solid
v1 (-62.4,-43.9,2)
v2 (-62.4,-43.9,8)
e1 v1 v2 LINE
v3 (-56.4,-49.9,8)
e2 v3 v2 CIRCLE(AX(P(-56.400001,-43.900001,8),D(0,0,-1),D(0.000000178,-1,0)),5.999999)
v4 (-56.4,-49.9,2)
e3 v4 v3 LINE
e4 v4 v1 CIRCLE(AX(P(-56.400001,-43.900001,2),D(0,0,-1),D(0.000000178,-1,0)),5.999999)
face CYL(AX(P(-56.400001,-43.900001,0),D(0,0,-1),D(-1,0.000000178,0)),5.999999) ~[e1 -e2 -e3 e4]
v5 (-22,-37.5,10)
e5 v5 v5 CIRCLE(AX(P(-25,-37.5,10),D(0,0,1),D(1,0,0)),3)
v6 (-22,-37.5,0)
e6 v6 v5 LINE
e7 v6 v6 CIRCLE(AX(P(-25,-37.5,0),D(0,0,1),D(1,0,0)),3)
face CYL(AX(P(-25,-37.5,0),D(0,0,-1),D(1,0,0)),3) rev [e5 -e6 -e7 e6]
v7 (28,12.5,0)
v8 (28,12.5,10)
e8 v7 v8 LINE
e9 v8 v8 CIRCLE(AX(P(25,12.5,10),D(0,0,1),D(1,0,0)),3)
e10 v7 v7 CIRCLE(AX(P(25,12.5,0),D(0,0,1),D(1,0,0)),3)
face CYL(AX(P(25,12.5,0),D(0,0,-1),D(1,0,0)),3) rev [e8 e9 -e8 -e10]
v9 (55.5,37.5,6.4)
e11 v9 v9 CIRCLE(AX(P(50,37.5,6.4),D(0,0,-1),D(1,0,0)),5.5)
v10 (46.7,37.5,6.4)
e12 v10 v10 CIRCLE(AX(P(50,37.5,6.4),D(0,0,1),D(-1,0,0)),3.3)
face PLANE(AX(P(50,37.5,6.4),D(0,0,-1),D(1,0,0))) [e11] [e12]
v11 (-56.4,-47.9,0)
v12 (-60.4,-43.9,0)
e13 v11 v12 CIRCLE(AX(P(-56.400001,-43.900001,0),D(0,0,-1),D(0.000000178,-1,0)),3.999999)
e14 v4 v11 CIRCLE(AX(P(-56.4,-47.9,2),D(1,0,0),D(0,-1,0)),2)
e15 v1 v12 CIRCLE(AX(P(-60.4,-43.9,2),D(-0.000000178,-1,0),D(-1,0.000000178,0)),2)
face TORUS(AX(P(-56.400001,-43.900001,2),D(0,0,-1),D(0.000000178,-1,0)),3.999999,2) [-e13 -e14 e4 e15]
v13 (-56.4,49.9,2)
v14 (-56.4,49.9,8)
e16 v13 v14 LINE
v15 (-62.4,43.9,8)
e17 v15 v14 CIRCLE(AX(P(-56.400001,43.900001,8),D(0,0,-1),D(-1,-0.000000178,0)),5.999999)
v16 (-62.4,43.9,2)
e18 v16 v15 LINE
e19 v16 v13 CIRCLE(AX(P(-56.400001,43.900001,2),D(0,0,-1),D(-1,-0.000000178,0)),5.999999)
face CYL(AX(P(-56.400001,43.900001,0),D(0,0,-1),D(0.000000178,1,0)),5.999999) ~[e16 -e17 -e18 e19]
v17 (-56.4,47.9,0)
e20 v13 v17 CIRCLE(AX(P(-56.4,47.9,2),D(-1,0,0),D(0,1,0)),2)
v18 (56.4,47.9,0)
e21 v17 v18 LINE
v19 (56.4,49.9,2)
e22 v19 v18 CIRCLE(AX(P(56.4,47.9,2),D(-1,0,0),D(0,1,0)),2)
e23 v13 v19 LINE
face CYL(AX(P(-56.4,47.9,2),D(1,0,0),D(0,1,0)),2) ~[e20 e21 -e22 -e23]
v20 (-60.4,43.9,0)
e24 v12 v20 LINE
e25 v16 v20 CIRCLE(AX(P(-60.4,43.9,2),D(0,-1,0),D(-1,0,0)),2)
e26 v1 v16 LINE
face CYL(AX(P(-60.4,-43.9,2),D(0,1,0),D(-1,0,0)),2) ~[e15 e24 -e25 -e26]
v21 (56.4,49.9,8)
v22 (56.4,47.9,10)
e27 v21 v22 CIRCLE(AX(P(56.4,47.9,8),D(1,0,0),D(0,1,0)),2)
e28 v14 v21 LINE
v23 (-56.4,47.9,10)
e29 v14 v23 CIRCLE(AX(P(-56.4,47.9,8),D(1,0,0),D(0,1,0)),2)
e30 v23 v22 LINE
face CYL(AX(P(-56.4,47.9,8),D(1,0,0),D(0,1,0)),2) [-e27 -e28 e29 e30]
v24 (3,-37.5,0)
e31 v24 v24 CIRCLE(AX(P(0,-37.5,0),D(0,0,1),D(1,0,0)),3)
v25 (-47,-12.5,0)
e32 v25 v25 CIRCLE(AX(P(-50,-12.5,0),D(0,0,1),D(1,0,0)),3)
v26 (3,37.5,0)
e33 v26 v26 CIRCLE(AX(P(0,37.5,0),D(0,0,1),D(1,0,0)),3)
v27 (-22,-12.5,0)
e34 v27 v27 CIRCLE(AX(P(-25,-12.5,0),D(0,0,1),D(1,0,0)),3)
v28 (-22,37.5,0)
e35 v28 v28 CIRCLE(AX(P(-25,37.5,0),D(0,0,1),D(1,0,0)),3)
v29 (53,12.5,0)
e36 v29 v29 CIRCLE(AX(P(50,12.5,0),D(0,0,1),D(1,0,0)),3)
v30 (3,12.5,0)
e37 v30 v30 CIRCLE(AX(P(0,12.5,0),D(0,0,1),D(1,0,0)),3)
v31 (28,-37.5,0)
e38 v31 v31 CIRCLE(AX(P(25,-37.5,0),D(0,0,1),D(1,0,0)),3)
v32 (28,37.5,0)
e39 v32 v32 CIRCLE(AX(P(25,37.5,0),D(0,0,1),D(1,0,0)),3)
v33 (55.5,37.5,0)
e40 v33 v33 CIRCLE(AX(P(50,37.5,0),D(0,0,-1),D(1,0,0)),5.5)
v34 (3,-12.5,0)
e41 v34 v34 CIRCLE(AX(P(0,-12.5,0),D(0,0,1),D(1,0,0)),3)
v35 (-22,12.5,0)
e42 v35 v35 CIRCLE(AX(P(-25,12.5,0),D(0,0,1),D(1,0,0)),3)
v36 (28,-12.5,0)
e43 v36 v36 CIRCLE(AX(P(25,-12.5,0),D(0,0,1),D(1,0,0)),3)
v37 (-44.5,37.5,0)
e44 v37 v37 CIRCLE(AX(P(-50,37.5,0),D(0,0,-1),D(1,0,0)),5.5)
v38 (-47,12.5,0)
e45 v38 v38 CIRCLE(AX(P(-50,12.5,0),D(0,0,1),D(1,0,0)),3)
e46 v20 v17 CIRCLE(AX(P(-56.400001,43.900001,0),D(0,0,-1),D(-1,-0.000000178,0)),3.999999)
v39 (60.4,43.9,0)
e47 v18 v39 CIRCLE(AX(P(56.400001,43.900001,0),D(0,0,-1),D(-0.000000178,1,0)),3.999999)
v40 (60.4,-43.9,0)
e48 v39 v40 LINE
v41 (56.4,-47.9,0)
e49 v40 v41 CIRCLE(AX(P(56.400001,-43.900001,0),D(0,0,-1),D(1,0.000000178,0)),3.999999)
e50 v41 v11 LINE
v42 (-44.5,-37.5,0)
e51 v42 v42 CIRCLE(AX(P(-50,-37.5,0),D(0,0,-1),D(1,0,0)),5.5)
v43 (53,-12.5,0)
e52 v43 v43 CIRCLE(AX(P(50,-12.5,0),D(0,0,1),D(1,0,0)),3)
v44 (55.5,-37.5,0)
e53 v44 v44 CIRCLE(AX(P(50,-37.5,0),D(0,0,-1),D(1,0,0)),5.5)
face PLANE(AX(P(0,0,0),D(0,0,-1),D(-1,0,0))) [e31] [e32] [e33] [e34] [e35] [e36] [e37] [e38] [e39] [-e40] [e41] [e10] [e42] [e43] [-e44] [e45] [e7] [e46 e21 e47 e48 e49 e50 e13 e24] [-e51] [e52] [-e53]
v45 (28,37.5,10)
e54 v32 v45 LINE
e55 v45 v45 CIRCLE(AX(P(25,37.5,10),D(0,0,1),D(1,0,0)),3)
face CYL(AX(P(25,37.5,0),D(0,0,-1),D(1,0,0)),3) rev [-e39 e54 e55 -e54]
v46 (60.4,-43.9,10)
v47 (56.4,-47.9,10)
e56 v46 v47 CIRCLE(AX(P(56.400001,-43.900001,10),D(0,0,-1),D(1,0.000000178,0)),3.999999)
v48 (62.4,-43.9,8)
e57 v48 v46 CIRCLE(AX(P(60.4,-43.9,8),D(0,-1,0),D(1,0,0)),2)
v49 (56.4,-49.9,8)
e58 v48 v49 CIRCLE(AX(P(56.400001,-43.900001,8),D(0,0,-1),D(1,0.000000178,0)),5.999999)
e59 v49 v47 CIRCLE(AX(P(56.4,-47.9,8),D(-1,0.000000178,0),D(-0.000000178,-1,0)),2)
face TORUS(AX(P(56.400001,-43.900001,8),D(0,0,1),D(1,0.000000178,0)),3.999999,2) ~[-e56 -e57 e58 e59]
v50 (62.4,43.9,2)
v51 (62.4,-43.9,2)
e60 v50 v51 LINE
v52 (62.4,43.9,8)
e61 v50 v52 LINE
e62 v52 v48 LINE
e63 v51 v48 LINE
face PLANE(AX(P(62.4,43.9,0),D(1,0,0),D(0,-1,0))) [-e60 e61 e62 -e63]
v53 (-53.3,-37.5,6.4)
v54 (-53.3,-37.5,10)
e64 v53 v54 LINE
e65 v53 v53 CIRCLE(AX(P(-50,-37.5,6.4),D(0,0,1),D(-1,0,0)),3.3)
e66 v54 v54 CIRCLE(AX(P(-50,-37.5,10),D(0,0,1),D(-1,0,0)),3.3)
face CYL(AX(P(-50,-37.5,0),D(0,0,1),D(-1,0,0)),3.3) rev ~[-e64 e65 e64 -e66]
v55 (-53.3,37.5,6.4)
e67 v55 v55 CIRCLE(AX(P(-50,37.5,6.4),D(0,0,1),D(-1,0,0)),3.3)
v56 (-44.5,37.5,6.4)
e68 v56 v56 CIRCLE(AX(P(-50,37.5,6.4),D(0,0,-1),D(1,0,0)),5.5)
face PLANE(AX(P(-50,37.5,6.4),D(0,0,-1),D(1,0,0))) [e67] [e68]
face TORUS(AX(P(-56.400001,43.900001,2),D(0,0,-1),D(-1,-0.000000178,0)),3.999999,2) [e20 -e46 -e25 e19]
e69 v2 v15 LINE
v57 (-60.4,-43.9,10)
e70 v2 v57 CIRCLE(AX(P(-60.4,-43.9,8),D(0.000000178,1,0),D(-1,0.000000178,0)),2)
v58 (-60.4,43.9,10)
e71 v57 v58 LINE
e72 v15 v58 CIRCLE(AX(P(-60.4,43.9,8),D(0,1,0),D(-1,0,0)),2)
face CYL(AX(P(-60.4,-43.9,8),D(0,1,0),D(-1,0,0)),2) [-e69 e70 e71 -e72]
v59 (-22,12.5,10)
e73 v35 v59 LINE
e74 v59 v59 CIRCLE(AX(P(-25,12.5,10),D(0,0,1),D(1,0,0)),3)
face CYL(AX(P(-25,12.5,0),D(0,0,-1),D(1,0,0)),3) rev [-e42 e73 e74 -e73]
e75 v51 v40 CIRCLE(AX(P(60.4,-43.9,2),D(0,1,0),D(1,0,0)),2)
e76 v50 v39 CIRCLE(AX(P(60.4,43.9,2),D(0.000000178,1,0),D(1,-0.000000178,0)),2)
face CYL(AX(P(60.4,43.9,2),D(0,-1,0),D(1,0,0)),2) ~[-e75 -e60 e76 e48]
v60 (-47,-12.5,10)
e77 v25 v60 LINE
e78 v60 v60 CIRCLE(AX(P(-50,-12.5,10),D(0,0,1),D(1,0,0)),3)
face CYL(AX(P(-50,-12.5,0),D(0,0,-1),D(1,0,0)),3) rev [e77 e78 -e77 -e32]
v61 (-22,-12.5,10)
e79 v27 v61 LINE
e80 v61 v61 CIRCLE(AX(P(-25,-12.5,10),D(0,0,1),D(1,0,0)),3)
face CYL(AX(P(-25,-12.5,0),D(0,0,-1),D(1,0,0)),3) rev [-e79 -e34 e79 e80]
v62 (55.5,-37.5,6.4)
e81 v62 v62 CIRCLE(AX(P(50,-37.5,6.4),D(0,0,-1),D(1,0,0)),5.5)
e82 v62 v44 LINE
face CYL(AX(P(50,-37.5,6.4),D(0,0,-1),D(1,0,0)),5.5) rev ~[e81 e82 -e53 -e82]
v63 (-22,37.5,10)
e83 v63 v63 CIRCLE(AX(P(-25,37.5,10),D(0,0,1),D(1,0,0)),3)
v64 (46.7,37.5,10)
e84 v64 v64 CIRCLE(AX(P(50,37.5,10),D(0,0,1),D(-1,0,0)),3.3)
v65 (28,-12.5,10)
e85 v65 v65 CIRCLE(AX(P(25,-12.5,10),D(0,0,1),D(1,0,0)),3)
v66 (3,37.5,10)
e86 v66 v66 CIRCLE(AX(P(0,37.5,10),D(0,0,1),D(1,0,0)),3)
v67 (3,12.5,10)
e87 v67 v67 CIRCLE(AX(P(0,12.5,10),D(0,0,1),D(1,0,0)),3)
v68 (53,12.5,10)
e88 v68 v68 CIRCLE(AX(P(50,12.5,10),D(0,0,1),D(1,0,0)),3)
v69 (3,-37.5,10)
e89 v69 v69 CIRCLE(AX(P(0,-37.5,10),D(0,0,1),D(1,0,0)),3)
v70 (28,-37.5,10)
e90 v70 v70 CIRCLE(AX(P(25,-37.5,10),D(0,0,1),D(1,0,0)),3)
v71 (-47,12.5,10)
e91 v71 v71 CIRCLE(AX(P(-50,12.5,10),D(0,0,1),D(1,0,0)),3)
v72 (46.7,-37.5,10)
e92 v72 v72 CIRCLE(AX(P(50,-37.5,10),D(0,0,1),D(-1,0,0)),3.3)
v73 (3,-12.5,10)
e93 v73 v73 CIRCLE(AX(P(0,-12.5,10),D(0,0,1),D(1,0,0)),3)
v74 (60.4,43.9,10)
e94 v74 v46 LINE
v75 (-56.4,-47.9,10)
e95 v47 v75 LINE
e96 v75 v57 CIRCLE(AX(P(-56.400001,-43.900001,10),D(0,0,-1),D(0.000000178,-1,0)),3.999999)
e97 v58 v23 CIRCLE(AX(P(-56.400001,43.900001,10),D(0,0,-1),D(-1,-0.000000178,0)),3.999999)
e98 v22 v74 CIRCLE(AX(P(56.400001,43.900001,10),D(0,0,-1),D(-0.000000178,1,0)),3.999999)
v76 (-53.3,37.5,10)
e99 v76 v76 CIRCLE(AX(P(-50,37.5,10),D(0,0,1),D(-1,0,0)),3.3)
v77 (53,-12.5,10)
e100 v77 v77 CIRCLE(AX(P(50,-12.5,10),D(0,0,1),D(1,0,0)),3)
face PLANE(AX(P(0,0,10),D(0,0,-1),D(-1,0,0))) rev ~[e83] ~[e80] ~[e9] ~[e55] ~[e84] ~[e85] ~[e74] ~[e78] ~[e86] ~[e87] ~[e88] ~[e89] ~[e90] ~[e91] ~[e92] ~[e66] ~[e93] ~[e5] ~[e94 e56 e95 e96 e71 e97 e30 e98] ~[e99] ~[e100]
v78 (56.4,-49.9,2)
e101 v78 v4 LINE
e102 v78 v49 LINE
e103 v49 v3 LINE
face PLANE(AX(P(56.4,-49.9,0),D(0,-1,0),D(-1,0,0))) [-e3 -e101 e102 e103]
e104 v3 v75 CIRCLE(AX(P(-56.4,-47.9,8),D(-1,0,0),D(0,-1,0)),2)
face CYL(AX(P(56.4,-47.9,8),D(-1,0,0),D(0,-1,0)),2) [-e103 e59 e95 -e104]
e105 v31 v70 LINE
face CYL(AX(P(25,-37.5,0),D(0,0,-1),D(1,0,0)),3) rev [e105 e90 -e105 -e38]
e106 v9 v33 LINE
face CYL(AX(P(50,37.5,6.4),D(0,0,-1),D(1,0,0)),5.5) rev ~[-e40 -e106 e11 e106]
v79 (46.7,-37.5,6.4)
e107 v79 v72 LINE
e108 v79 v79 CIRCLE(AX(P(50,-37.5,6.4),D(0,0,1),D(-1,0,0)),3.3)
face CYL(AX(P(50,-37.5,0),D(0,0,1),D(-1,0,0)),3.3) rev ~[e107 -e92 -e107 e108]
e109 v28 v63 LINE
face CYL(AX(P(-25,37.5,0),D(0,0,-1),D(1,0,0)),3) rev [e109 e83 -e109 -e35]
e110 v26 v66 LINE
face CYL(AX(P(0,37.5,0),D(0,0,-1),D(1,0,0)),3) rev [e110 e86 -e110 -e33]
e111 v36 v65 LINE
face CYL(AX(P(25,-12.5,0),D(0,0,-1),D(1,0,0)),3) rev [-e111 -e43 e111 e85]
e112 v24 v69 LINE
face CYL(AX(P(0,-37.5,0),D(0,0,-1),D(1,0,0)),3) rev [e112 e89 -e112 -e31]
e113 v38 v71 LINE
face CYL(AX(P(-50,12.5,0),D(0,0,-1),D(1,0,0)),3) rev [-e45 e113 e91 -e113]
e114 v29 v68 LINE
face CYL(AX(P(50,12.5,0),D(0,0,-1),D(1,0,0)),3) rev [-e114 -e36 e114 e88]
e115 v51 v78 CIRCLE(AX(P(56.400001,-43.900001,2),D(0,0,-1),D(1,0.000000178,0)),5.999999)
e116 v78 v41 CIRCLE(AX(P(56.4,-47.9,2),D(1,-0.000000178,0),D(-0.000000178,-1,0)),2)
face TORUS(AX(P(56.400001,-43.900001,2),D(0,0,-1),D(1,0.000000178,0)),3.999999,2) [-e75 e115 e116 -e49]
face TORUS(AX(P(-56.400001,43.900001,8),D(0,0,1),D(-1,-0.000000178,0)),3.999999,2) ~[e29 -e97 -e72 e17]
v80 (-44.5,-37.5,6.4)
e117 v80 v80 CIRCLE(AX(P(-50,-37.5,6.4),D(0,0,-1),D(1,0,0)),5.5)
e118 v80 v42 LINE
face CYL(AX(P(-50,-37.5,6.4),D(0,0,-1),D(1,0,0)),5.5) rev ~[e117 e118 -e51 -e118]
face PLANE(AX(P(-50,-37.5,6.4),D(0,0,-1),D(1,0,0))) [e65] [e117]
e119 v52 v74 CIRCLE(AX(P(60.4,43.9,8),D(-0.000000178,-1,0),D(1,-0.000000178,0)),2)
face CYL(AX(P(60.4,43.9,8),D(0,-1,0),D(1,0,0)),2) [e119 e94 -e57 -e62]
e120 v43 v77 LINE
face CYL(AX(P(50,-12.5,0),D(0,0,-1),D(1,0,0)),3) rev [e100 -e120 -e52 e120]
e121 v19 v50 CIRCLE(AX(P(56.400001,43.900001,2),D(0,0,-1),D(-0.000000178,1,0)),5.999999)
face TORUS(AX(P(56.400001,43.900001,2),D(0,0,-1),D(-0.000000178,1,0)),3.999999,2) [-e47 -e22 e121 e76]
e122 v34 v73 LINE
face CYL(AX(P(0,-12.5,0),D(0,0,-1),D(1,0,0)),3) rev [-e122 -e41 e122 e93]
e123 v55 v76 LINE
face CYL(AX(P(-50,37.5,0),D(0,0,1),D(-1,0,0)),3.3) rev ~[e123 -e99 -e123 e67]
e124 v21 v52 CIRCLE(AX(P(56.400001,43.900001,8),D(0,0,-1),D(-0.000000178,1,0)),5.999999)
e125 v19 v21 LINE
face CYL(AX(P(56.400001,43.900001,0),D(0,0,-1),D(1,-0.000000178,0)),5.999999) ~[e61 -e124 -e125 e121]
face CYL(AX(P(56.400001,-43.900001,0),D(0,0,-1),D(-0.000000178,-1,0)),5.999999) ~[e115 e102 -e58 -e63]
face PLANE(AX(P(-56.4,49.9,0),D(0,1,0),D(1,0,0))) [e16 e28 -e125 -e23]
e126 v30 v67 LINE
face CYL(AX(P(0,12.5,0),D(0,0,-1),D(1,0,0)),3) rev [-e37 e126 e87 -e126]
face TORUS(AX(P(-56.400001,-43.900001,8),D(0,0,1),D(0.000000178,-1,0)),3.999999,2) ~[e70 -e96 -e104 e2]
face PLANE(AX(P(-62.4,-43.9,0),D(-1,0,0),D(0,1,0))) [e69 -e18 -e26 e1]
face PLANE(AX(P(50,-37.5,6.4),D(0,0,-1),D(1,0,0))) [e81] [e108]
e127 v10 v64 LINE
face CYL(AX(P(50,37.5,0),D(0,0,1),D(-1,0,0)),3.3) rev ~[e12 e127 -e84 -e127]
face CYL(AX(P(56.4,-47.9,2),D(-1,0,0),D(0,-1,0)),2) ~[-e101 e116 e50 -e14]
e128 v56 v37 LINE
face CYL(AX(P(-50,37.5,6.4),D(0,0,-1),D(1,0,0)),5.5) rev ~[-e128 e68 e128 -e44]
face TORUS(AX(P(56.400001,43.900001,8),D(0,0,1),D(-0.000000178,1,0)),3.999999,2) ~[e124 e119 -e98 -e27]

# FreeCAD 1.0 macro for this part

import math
import FreeCAD as App
import Part
import Sketcher
from FreeCAD import Vector
Q = App.Units.Quantity


def edges_at(feature, points):
    """Names of the edges that pass closest to the given points."""
    edges = feature.Shape.Edges
    near = lambda p: min(range(len(edges)), key=lambda i: edges[i].distToShape(Part.Vertex(*p))[0])
    return sorted({f"Edge{near(p) + 1}" for p in points})

doc = App.newDocument("Part")
params = doc.addObject("Spreadsheet::Sheet", "Params")
for row, (alias, value) in enumerate([
    ("sketch1_diameter", "6 mm"),
    ("sketch1_radius", "5.999999 mm"),
    ("sketch1_width", "112.8 mm"),
    ("sketch1_height", "87.8 mm"),
    ("pad1_length", "10 mm"),
    ("sketch2_diameter", "6.6 mm"),
    ("hole_diameter", "6.6 mm"),
    ("hole_depth", "25 mm"),
    ("hole_cbore_diameter", "11 mm"),
    ("hole_cbore_depth", "6.4 mm"),
    ("fillet_radius", "2 mm"),
    ("fillet2_radius", "2 mm"),
], start=1):
    params.set(f"A{row}", alias)
    params.set(f"B{row}", "=" + value)
    params.setAlias(f"B{row}", alias)

body = doc.addObject("PartDesign::Body", "Body")

sketch1 = body.newObject("Sketcher::SketchObject", "Sketch")
sketch1.AttachmentSupport = (doc.getObject("XY_Plane"), [""])
sketch1.MapMode = "FlatFace"
sketch1.addGeometry([
    Part.LineSegment(Vector(56.4, 49.9, 0), Vector(-56.4, 49.9, 0)),
    Part.ArcOfCircle(Part.Circle(Vector(-56.4, 43.9, 0), Vector(0, 0, 1), 6), math.radians(90), math.radians(180)),
    Part.LineSegment(Vector(-62.4, 43.9, 0), Vector(-62.4, -43.9, 0)),
    Part.ArcOfCircle(Part.Circle(Vector(-56.4, -43.9, 0), Vector(0, 0, 1), 6), math.radians(180), math.radians(270)),
    Part.LineSegment(Vector(-56.4, -49.9, 0), Vector(56.4, -49.9, 0)),
    Part.ArcOfCircle(Part.Circle(Vector(56.4, -43.9, 0), Vector(0, 0, 1), 6), math.radians(-90), math.radians(0)),
    Part.LineSegment(Vector(62.4, -43.9, 0), Vector(62.4, 43.9, 0)),
    Part.ArcOfCircle(Part.Circle(Vector(56.4, 43.9, 0), Vector(0, 0, 1), 6), math.radians(0), math.radians(90)),
    Part.Circle(Vector(25, -37.5, 0), Vector(0, 0, 1), 3),
    Part.Circle(Vector(50, -12.5, 0), Vector(0, 0, 1), 3),
    Part.Circle(Vector(25, -12.5, 0), Vector(0, 0, 1), 3),
    Part.Circle(Vector(0, -37.5, 0), Vector(0, 0, 1), 3),
    Part.Circle(Vector(-25, -37.5, 0), Vector(0, 0, 1), 3),
    Part.Circle(Vector(0, -12.5, 0), Vector(0, 0, 1), 3),
    Part.Circle(Vector(-25, -12.5, 0), Vector(0, 0, 1), 3),
    Part.Circle(Vector(-50, -12.5, 0), Vector(0, 0, 1), 3),
    Part.Circle(Vector(50, 12.5, 0), Vector(0, 0, 1), 3),
    Part.Circle(Vector(25, 12.5, 0), Vector(0, 0, 1), 3),
    Part.Circle(Vector(25, 37.5, 0), Vector(0, 0, 1), 3),
    Part.Circle(Vector(0, 12.5, 0), Vector(0, 0, 1), 3),
    Part.Circle(Vector(-25, 12.5, 0), Vector(0, 0, 1), 3),
    Part.Circle(Vector(-50, 12.5, 0), Vector(0, 0, 1), 3),
    Part.Circle(Vector(0, 37.5, 0), Vector(0, 0, 1), 3),
    Part.Circle(Vector(-25, 37.5, 0), Vector(0, 0, 1), 3),
], False)
sketch1.addConstraint([
    Sketcher.Constraint("Tangent", 0, 2, 1, 1),
    Sketcher.Constraint("Tangent", 1, 2, 2, 1),
    Sketcher.Constraint("Tangent", 2, 2, 3, 1),
    Sketcher.Constraint("Tangent", 3, 2, 4, 1),
    Sketcher.Constraint("Tangent", 4, 2, 5, 1),
    Sketcher.Constraint("Tangent", 5, 2, 6, 1),
    Sketcher.Constraint("Tangent", 6, 2, 7, 1),
    Sketcher.Constraint("Tangent", 7, 2, 0, 1),
    Sketcher.Constraint("Horizontal", 0),
    Sketcher.Constraint("Vertical", 2),
    Sketcher.Constraint("Horizontal", 4),
    Sketcher.Constraint("Vertical", 6),
    Sketcher.Constraint("Equal", 1, 3),
    Sketcher.Constraint("Equal", 3, 5),
    Sketcher.Constraint("Equal", 5, 7),
    Sketcher.Constraint("Equal", 8, 9),
    Sketcher.Constraint("Equal", 9, 10),
    Sketcher.Constraint("Equal", 10, 11),
    Sketcher.Constraint("Equal", 11, 12),
    Sketcher.Constraint("Equal", 12, 13),
    Sketcher.Constraint("Equal", 13, 14),
    Sketcher.Constraint("Equal", 14, 15),
    Sketcher.Constraint("Equal", 15, 16),
    Sketcher.Constraint("Equal", 16, 17),
    Sketcher.Constraint("Equal", 17, 18),
    Sketcher.Constraint("Equal", 18, 19),
    Sketcher.Constraint("Equal", 19, 20),
    Sketcher.Constraint("Equal", 20, 21),
    Sketcher.Constraint("Equal", 21, 22),
    Sketcher.Constraint("Equal", 22, 23),
    Sketcher.Constraint("Symmetric", 1, 3, 5, 3, -1, 1),
    Sketcher.Constraint("Symmetric", 15, 3, 16, 3, -1, 1),
    Sketcher.Constraint("Symmetric", 14, 3, 17, 3, -1, 1),
    Sketcher.Constraint("Symmetric", 12, 3, 18, 3, -1, 1),
    Sketcher.Constraint("Symmetric", 13, 3, 19, 3, -1, 1),
    Sketcher.Constraint("Symmetric", 10, 3, 20, 3, -1, 1),
    Sketcher.Constraint("Symmetric", 9, 3, 21, 3, -1, 1),
    Sketcher.Constraint("Symmetric", 11, 3, 22, 3, -1, 1),
    Sketcher.Constraint("Symmetric", 8, 3, 23, 3, -1, 1),
    Sketcher.Constraint("Symmetric", 8, 3, 12, 3, -2),
    Sketcher.Constraint("Symmetric", 10, 3, 14, 3, -2),
    Sketcher.Constraint("Symmetric", 9, 3, 15, 3, -2),
    Sketcher.Constraint("PointOnObject", 11, 3, -2),
    Sketcher.Constraint("PointOnObject", 13, 3, -2),
    Sketcher.Constraint("Horizontal", 9, 3, 10, 3),
    Sketcher.Constraint("Horizontal", 8, 3, 11, 3),
    Sketcher.Constraint("Horizontal", 10, 3, 13, 3),
    Sketcher.Constraint("Vertical", 8, 3, 10, 3),
    Sketcher.Constraint("Diameter", 8, Q("6 mm")),
    Sketcher.Constraint("Radius", 1, Q("5.999999 mm")),
    Sketcher.Constraint("DistanceX", 0, 2, 0, 1, Q("112.8 mm")),
    Sketcher.Constraint("DistanceY", 2, 2, 2, 1, Q("87.8 mm")),
    Sketcher.Constraint("DistanceX", -1, 1, 8, 3, Q("25 mm")),
    Sketcher.Constraint("DistanceX", -1, 1, 9, 3, Q("50 mm")),
    Sketcher.Constraint("DistanceY", 8, 3, 9, 3, Q("25 mm")),
    Sketcher.Constraint("DistanceY", 9, 3, 16, 3, Q("25 mm")),
])
sketch1.setExpression("Constraints[48]", "Params.sketch1_diameter")
sketch1.setExpression("Constraints[49]", "Params.sketch1_radius")
sketch1.setExpression("Constraints[50]", "Params.sketch1_width")
sketch1.setExpression("Constraints[51]", "Params.sketch1_height")
pad1 = body.newObject("PartDesign::Pad", "Pad")
pad1.Profile = sketch1
pad1.setExpression("Length", "Params.pad1_length")

sketch2 = body.newObject("Sketcher::SketchObject", "Sketch001")
sketch2.AttachmentSupport = (doc.getObject("XY_Plane"), [""])
sketch2.MapMode = "FlatFace"
sketch2.addGeometry([
    Part.Circle(Vector(50, 37.5, 0), Vector(0, 0, 1), 3.3),
    Part.Circle(Vector(-50, 37.5, 0), Vector(0, 0, 1), 3.3),
    Part.Circle(Vector(-50, -37.5, 0), Vector(0, 0, 1), 3.3),
    Part.Circle(Vector(50, -37.5, 0), Vector(0, 0, 1), 3.3),
], False)
sketch2.addConstraint([
    Sketcher.Constraint("Equal", 0, 1),
    Sketcher.Constraint("Equal", 1, 2),
    Sketcher.Constraint("Equal", 2, 3),
    Sketcher.Constraint("Symmetric", 0, 3, 2, 3, -1, 1),
    Sketcher.Constraint("Symmetric", 1, 3, 3, 3, -1, 1),
    Sketcher.Constraint("Symmetric", 0, 3, 1, 3, -2),
    Sketcher.Constraint("Diameter", 0, Q("6.6 mm")),
    Sketcher.Constraint("DistanceX", -1, 1, 0, 3, Q("50 mm")),
    Sketcher.Constraint("DistanceY", 2, 3, 1, 3, Q("75 mm")),
])
sketch2.setExpression("Constraints[6]", "Params.sketch2_diameter")
doc.recompute()
hole = body.newObject("PartDesign::Hole", "Hole")
hole.Profile = sketch2
hole.ThreadType = "None"
hole.setExpression("Diameter", "Params.hole_diameter")
hole.DepthType = "Dimension"
hole.setExpression("Depth", "Params.hole_depth")
hole.DrillPoint = "Flat"
hole.HoleCutType = "Counterbore"
hole.setExpression("HoleCutDiameter", "Params.hole_cbore_diameter")
hole.setExpression("HoleCutDepth", "Params.hole_cbore_depth")
hole.Reversed = True
doc.recompute()

fillet = body.newObject("PartDesign::Fillet", "Fillet")
fillet.Base = (hole, edges_at(hole, [(0, 49.9, 0)]))
fillet.setExpression("Radius", "Params.fillet_radius")
doc.recompute()

fillet2 = body.newObject("PartDesign::Fillet", "Fillet001")
fillet2.Base = (fillet, edges_at(fillet, [(0, 49.9, 10)]))
fillet2.setExpression("Radius", "Params.fillet2_radius")

doc.recompute()
